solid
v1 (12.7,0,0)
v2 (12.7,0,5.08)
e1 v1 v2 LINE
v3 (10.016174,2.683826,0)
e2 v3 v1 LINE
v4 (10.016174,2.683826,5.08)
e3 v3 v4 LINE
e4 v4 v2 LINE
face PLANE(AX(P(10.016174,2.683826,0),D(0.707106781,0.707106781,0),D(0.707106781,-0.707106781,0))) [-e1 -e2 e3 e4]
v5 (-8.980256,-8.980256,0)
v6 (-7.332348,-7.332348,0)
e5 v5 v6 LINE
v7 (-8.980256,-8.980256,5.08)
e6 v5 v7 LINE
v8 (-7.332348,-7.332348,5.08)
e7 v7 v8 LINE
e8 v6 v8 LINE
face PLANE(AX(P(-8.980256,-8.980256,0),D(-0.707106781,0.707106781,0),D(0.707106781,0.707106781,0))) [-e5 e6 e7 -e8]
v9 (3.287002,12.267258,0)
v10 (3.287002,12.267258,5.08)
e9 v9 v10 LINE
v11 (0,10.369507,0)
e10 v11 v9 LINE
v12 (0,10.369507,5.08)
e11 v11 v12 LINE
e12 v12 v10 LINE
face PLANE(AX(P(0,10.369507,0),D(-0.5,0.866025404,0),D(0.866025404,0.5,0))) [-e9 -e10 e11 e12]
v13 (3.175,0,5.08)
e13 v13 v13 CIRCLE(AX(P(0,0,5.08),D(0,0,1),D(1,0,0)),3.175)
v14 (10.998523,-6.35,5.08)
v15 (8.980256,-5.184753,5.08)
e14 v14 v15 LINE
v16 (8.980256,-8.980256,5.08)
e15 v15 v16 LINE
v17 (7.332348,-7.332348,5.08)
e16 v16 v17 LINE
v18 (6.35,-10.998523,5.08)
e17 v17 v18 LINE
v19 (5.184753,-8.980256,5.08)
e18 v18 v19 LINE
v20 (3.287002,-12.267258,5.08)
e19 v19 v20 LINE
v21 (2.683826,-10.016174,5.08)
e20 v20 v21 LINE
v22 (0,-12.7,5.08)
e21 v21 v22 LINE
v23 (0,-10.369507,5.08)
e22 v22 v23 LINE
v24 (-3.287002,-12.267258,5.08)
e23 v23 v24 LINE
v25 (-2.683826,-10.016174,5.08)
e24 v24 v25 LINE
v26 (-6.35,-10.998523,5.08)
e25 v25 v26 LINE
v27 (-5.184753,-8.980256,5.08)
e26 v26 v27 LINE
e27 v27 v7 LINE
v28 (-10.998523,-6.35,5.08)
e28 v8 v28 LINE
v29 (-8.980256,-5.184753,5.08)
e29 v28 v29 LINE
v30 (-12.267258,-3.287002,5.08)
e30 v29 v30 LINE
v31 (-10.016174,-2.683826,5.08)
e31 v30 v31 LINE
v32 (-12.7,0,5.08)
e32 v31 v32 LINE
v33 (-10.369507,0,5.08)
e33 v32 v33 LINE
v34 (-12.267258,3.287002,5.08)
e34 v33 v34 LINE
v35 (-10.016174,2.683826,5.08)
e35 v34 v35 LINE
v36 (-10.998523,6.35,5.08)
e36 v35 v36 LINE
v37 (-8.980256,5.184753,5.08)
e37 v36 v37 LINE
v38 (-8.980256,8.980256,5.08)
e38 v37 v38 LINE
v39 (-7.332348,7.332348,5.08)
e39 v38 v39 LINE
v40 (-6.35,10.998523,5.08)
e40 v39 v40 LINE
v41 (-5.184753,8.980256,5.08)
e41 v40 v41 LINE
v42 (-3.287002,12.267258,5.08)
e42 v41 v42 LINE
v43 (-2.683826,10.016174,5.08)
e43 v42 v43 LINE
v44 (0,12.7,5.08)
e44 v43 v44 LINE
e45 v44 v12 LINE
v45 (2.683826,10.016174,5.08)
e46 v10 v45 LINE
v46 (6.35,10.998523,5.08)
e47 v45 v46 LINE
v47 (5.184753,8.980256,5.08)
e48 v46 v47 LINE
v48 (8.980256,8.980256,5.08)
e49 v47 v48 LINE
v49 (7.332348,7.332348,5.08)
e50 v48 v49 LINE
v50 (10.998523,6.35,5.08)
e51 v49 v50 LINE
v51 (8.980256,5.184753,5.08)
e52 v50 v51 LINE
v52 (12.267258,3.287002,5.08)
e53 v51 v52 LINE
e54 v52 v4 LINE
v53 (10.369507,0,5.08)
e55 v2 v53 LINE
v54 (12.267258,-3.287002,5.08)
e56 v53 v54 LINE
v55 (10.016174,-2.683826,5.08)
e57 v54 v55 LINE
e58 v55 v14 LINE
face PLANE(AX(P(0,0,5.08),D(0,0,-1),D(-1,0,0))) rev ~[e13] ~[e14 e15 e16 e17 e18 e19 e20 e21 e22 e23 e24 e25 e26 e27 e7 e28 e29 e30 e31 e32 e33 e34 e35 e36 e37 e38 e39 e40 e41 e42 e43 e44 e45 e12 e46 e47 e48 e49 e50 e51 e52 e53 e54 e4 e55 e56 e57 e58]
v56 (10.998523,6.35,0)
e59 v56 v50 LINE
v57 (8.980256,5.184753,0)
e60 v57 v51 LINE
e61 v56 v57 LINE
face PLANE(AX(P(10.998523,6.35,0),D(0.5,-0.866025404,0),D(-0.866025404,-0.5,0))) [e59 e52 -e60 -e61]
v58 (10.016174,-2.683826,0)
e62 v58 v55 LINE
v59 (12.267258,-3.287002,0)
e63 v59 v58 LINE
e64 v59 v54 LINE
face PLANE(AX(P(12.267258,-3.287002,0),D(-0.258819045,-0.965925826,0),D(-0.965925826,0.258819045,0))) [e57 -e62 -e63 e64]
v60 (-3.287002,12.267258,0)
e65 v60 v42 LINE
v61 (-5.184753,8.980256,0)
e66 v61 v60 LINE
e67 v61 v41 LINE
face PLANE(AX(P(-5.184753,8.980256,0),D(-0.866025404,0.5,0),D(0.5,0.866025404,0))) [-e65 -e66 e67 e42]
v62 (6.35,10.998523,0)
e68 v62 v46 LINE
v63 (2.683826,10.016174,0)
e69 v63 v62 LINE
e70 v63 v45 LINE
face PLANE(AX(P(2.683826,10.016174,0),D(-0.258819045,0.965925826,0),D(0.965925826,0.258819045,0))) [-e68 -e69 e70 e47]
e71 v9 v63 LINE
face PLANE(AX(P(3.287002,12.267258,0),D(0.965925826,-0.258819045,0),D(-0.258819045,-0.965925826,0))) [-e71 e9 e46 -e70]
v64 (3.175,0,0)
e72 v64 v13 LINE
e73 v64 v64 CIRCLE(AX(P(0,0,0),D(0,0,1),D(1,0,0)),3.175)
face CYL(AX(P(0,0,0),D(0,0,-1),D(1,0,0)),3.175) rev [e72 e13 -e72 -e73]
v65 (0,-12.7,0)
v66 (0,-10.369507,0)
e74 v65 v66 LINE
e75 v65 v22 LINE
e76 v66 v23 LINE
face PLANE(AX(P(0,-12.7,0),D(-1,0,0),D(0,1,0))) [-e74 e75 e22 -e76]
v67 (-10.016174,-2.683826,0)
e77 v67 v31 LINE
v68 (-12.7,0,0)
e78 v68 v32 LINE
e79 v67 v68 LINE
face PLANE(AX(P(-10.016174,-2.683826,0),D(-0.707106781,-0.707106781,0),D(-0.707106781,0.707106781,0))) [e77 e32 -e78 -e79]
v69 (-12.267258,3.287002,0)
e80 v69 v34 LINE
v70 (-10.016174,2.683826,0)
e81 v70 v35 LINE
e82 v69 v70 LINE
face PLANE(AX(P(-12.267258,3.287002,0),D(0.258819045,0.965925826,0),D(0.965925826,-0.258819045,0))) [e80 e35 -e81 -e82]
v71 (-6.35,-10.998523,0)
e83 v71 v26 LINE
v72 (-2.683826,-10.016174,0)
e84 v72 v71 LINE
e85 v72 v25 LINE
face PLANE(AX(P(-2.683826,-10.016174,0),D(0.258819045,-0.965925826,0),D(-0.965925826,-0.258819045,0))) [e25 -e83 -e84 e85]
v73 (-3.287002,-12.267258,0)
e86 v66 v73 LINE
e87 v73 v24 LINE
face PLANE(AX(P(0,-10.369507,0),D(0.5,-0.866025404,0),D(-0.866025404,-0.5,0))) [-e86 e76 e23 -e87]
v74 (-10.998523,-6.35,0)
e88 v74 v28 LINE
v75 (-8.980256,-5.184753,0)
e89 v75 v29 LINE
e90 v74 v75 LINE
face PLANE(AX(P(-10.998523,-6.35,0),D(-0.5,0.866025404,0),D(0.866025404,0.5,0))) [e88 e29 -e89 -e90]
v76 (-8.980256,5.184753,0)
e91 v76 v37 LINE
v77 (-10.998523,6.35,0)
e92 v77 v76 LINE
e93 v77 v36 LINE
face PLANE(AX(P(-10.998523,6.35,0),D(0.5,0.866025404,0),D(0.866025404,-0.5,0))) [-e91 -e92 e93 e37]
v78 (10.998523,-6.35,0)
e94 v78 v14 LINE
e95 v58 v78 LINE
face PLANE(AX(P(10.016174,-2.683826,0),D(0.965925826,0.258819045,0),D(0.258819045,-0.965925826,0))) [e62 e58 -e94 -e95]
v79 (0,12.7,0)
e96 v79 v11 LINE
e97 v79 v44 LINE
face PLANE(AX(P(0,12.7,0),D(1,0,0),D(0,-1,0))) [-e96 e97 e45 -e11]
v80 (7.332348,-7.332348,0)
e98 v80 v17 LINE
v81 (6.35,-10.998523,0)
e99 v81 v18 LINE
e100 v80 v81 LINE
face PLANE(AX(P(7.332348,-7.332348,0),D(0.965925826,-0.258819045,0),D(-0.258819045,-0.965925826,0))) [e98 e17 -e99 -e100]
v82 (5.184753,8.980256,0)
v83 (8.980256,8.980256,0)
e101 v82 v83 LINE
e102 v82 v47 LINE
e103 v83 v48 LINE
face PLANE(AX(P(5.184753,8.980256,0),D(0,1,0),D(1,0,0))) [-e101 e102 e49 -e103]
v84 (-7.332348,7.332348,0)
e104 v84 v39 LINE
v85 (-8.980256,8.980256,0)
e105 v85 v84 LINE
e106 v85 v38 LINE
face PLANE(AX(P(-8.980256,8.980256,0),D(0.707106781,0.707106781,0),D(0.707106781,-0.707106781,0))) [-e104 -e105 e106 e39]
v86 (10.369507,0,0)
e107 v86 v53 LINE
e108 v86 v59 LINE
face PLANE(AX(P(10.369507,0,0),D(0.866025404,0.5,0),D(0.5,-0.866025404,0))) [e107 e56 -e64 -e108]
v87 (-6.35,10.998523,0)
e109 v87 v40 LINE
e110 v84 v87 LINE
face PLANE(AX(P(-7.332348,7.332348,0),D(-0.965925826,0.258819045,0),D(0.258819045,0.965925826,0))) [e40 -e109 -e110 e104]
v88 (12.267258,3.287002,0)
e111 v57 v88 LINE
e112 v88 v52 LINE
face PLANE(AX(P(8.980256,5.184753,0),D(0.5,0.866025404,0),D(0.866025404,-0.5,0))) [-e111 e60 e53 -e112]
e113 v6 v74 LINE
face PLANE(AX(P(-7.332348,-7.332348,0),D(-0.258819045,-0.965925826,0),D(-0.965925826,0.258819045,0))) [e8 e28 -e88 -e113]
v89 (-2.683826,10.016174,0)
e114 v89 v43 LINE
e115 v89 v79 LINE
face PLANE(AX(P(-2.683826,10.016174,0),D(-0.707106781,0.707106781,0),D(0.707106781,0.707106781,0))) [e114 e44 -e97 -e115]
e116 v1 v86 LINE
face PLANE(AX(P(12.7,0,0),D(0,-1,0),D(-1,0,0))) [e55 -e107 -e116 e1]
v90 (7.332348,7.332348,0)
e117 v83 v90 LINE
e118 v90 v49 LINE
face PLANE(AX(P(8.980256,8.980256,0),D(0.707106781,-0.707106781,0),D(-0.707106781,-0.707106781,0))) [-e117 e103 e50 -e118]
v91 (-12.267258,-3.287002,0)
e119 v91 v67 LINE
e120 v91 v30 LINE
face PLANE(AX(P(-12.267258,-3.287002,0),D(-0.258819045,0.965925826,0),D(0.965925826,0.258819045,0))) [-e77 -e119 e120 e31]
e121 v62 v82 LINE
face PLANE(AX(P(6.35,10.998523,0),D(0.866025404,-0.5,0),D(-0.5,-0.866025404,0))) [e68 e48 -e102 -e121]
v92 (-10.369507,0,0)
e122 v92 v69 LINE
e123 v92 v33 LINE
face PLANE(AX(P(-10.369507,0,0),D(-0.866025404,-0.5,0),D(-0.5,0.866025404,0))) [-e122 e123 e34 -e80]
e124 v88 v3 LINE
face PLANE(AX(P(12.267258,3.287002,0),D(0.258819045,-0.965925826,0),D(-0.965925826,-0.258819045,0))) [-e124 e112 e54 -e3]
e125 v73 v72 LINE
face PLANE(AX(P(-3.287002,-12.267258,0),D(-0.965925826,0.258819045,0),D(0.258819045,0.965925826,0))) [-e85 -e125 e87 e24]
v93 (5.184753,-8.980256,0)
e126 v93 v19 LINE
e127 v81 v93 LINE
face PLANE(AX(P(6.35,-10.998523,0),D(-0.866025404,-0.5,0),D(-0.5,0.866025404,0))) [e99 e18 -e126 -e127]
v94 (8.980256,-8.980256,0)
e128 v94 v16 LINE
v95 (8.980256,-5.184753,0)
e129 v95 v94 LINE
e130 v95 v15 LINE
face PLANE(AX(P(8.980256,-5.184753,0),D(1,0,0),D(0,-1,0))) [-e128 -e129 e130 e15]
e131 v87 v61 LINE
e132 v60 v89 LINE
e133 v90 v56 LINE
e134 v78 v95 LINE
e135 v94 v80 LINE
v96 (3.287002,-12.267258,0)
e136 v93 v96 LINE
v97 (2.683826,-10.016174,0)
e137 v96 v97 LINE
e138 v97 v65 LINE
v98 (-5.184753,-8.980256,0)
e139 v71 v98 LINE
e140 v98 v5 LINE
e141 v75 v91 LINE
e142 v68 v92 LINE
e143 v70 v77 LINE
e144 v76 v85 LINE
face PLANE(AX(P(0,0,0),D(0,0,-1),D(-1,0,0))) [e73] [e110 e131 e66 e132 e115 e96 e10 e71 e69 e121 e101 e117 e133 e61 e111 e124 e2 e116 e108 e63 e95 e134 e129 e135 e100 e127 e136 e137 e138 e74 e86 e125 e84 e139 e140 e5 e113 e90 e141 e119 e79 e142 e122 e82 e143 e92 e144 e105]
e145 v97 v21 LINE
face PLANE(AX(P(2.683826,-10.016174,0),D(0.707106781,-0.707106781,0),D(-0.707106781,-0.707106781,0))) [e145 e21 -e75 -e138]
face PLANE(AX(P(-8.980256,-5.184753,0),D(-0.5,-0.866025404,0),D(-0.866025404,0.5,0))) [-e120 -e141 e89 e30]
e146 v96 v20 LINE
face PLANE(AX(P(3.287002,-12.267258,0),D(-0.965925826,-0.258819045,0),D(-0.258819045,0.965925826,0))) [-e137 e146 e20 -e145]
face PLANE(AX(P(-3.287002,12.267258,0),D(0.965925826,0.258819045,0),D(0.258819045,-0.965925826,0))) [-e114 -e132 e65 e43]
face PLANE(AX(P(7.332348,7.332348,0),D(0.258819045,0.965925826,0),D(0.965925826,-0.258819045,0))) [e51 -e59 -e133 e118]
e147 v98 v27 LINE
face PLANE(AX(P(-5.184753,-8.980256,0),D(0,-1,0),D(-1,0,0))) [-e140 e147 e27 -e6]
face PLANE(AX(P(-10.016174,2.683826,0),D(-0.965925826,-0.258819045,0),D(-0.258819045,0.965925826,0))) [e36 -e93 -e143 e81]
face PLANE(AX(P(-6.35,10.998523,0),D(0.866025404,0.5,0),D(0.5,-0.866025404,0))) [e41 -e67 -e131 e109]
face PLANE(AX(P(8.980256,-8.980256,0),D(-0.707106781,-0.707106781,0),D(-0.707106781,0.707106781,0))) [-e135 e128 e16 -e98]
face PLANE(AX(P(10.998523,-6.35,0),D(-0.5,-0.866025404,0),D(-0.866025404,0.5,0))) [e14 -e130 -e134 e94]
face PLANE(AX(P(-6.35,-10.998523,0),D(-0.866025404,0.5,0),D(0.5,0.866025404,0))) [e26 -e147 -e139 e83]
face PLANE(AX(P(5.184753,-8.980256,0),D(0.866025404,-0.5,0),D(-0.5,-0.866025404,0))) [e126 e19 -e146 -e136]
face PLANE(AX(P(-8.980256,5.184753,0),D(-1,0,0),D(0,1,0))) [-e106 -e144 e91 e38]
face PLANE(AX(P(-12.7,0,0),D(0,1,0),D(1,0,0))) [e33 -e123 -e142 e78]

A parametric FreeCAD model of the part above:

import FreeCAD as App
import Part
import Sketcher
from FreeCAD import Vector
Q = App.Units.Quantity

doc = App.newDocument("Part")
body = doc.addObject("PartDesign::Body", "Body")

sketch1 = body.newObject("Sketcher::SketchObject", "Sketch")
sketch1.AttachmentSupport = (doc.getObject("XY_Plane"), [""])
sketch1.MapMode = "FlatFace"
sketch1.addGeometry([
    Part.LineSegment(Vector(0, 12.7, 0), Vector(-2.7, 10, 0)),
    Part.LineSegment(Vector(-2.7, 10, 0), Vector(-3.3, 12.3, 0)),
    Part.LineSegment(Vector(-3.3, 12.3, 0), Vector(-5.2, 9, 0)),
    Part.LineSegment(Vector(-5.2, 9, 0), Vector(-6.3, 11, 0)),
    Part.LineSegment(Vector(-6.3, 11, 0), Vector(-7.3, 7.3, 0)),
    Part.LineSegment(Vector(-7.3, 7.3, 0), Vector(-9, 9, 0)),
    Part.LineSegment(Vector(-9, 9, 0), Vector(-9, 5.2, 0)),
    Part.LineSegment(Vector(-9, 5.2, 0), Vector(-11, 6.3, 0)),
    Part.LineSegment(Vector(-11, 6.3, 0), Vector(-10, 2.7, 0)),
    Part.LineSegment(Vector(-10, 2.7, 0), Vector(-12.3, 3.3, 0)),
    Part.LineSegment(Vector(-12.3, 3.3, 0), Vector(-10.4, 0, 0)),
    Part.LineSegment(Vector(-10.4, 0, 0), Vector(-12.7, 0, 0)),
    Part.LineSegment(Vector(-12.7, 0, 0), Vector(-10, -2.7, 0)),
    Part.LineSegment(Vector(-10, -2.7, 0), Vector(-12.3, -3.3, 0)),
    Part.LineSegment(Vector(-12.3, -3.3, 0), Vector(-9, -5.2, 0)),
    Part.LineSegment(Vector(-9, -5.2, 0), Vector(-11, -6.3, 0)),
    Part.LineSegment(Vector(-11, -6.3, 0), Vector(-7.3, -7.3, 0)),
    Part.LineSegment(Vector(-7.3, -7.3, 0), Vector(-9, -9, 0)),
    Part.LineSegment(Vector(-9, -9, 0), Vector(-5.2, -9, 0)),
    Part.LineSegment(Vector(-5.2, -9, 0), Vector(-6.3, -11, 0)),
    Part.LineSegment(Vector(-6.3, -11, 0), Vector(-2.7, -10, 0)),
    Part.LineSegment(Vector(-2.7, -10, 0), Vector(-3.3, -12.3, 0)),
    Part.LineSegment(Vector(-3.3, -12.3, 0), Vector(0, -10.4, 0)),
    Part.LineSegment(Vector(0, -10.4, 0), Vector(0, -12.7, 0)),
    Part.LineSegment(Vector(0, -12.7, 0), Vector(2.7, -10, 0)),
    Part.LineSegment(Vector(2.7, -10, 0), Vector(3.3, -12.3, 0)),
    Part.LineSegment(Vector(3.3, -12.3, 0), Vector(5.2, -9, 0)),
    Part.LineSegment(Vector(5.2, -9, 0), Vector(6.3, -11, 0)),
    Part.LineSegment(Vector(6.3, -11, 0), Vector(7.3, -7.3, 0)),
    Part.LineSegment(Vector(7.3, -7.3, 0), Vector(9, -9, 0)),
    Part.LineSegment(Vector(9, -9, 0), Vector(9, -5.2, 0)),
    Part.LineSegment(Vector(9, -5.2, 0), Vector(11, -6.3, 0)),
    Part.LineSegment(Vector(11, -6.3, 0), Vector(10, -2.7, 0)),
    Part.LineSegment(Vector(10, -2.7, 0), Vector(12.3, -3.3, 0)),
    Part.LineSegment(Vector(12.3, -3.3, 0), Vector(10.4, 0, 0)),
    Part.LineSegment(Vector(10.4, 0, 0), Vector(12.7, 0, 0)),
    Part.LineSegment(Vector(12.7, 0, 0), Vector(10, 2.7, 0)),
    Part.LineSegment(Vector(10, 2.7, 0), Vector(12.3, 3.3, 0)),
    Part.LineSegment(Vector(12.3, 3.3, 0), Vector(9, 5.2, 0)),
    Part.LineSegment(Vector(9, 5.2, 0), Vector(11, 6.3, 0)),
    Part.LineSegment(Vector(11, 6.3, 0), Vector(7.3, 7.3, 0)),
    Part.LineSegment(Vector(7.3, 7.3, 0), Vector(9, 9, 0)),
    Part.LineSegment(Vector(9, 9, 0), Vector(5.2, 9, 0)),
    Part.LineSegment(Vector(5.2, 9, 0), Vector(6.3, 11, 0)),
    Part.LineSegment(Vector(6.3, 11, 0), Vector(2.7, 10, 0)),
    Part.LineSegment(Vector(2.7, 10, 0), Vector(3.3, 12.3, 0)),
    Part.LineSegment(Vector(3.3, 12.3, 0), Vector(0, 10.4, 0)),
    Part.LineSegment(Vector(0, 10.4, 0), Vector(0, 12.7, 0)),
    Part.Circle(Vector(0, 0, 0), Vector(0, 0, 1), 3.2),
], False)
sketch1.addConstraint([
    Sketcher.Constraint("Coincident", 0, 2, 1, 1),
    Sketcher.Constraint("Coincident", 1, 2, 2, 1),
    Sketcher.Constraint("Coincident", 2, 2, 3, 1),
    Sketcher.Constraint("Coincident", 3, 2, 4, 1),
    Sketcher.Constraint("Coincident", 4, 2, 5, 1),
    Sketcher.Constraint("Coincident", 5, 2, 6, 1),
    Sketcher.Constraint("Coincident", 6, 2, 7, 1),
    Sketcher.Constraint("Coincident", 7, 2, 8, 1),
    Sketcher.Constraint("Coincident", 8, 2, 9, 1),
    Sketcher.Constraint("Coincident", 9, 2, 10, 1),
    Sketcher.Constraint("Coincident", 10, 2, 11, 1),
    Sketcher.Constraint("Coincident", 11, 2, 12, 1),
    Sketcher.Constraint("Coincident", 12, 2, 13, 1),
    Sketcher.Constraint("Coincident", 13, 2, 14, 1),
    Sketcher.Constraint("Coincident", 14, 2, 15, 1),
    Sketcher.Constraint("Coincident", 15, 2, 16, 1),
    Sketcher.Constraint("Coincident", 16, 2, 17, 1),
    Sketcher.Constraint("Coincident", 17, 2, 18, 1),
    Sketcher.Constraint("Coincident", 18, 2, 19, 1),
    Sketcher.Constraint("Coincident", 19, 2, 20, 1),
    Sketcher.Constraint("Coincident", 20, 2, 21, 1),
    Sketcher.Constraint("Coincident", 21, 2, 22, 1),
    Sketcher.Constraint("Coincident", 22, 2, 23, 1),
    Sketcher.Constraint("Coincident", 23, 2, 24, 1),
    Sketcher.Constraint("Coincident", 24, 2, 25, 1),
    Sketcher.Constraint("Coincident", 25, 2, 26, 1),
    Sketcher.Constraint("Coincident", 26, 2, 27, 1),
    Sketcher.Constraint("Coincident", 27, 2, 28, 1),
    Sketcher.Constraint("Coincident", 28, 2, 29, 1),
    Sketcher.Constraint("Coincident", 29, 2, 30, 1),
    Sketcher.Constraint("Coincident", 30, 2, 31, 1),
    Sketcher.Constraint("Coincident", 31, 2, 32, 1),
    Sketcher.Constraint("Coincident", 32, 2, 33, 1),
    Sketcher.Constraint("Coincident", 33, 2, 34, 1),
    Sketcher.Constraint("Coincident", 34, 2, 35, 1),
    Sketcher.Constraint("Coincident", 35, 2, 36, 1),
    Sketcher.Constraint("Coincident", 36, 2, 37, 1),
    Sketcher.Constraint("Coincident", 37, 2, 38, 1),
    Sketcher.Constraint("Coincident", 38, 2, 39, 1),
    Sketcher.Constraint("Coincident", 39, 2, 40, 1),
    Sketcher.Constraint("Coincident", 40, 2, 41, 1),
    Sketcher.Constraint("Coincident", 41, 2, 42, 1),
    Sketcher.Constraint("Coincident", 42, 2, 43, 1),
    Sketcher.Constraint("Coincident", 43, 2, 44, 1),
    Sketcher.Constraint("Coincident", 44, 2, 45, 1),
    Sketcher.Constraint("Coincident", 45, 2, 46, 1),
    Sketcher.Constraint("Coincident", 46, 2, 47, 1),
    Sketcher.Constraint("Coincident", 47, 2, 0, 1),
    Sketcher.Constraint("Vertical", 6),
    Sketcher.Constraint("Horizontal", 11),
    Sketcher.Constraint("Horizontal", 18),
    Sketcher.Constraint("Vertical", 23),
    Sketcher.Constraint("Vertical", 30),
    Sketcher.Constraint("Horizontal", 35),
    Sketcher.Constraint("Horizontal", 42),
    Sketcher.Constraint("Vertical", 47),
    Sketcher.Constraint("Coincident", 48, 3, -1, 1),
    Sketcher.Constraint("Symmetric", 0, 2, 24, 2, -1, 1),
    Sketcher.Constraint("Symmetric", 1, 2, 25, 2, -1, 1),
    Sketcher.Constraint("Symmetric", 2, 2, 26, 2, -1, 1),
    Sketcher.Constraint("Symmetric", 3, 2, 27, 2, -1, 1),
    Sketcher.Constraint("Symmetric", 4, 2, 28, 2, -1, 1),
    Sketcher.Constraint("Symmetric", 5, 2, 29, 2, -1, 1),
    Sketcher.Constraint("Symmetric", 7, 2, 31, 2, -1, 1),
    Sketcher.Constraint("Symmetric", 8, 2, 32, 2, -1, 1),
    Sketcher.Constraint("Symmetric", 9, 2, 33, 2, -1, 1),
    Sketcher.Constraint("Symmetric", 10, 2, 34, 2, -1, 1),
    Sketcher.Constraint("Symmetric", 12, 2, 36, 2, -1, 1),
    Sketcher.Constraint("Symmetric", 13, 2, 37, 2, -1, 1),
    Sketcher.Constraint("Symmetric", 14, 2, 38, 2, -1, 1),
    Sketcher.Constraint("Symmetric", 15, 2, 39, 2, -1, 1),
    Sketcher.Constraint("Symmetric", 16, 2, 40, 2, -1, 1),
    Sketcher.Constraint("Symmetric", 17, 2, 41, 2, -1, 1),
    Sketcher.Constraint("Symmetric", 19, 2, 43, 2, -1, 1),
    Sketcher.Constraint("Symmetric", 20, 2, 44, 2, -1, 1),
    Sketcher.Constraint("Symmetric", 21, 2, 45, 2, -1, 1),
    Sketcher.Constraint("Symmetric", 22, 2, 46, 2, -1, 1),
    Sketcher.Constraint("Symmetric", 20, 2, 24, 2, -2),
    Sketcher.Constraint("Symmetric", 21, 2, 25, 2, -2),
    Sketcher.Constraint("Symmetric", 18, 2, 26, 2, -2),
    Sketcher.Constraint("Symmetric", 19, 2, 27, 2, -2),
    Sketcher.Constraint("Symmetric", 16, 2, 28, 2, -2),
    Sketcher.Constraint("Symmetric", 17, 2, 29, 2, -2),
    Sketcher.Constraint("Symmetric", 14, 2, 30, 2, -2),
    Sketcher.Constraint("Symmetric", 15, 2, 31, 2, -2),
    Sketcher.Constraint("Symmetric", 12, 2, 32, 2, -2),
    Sketcher.Constraint("Symmetric", 13, 2, 33, 2, -2),
    Sketcher.Constraint("Symmetric", 11, 2, 35, 2, -2),
    Sketcher.Constraint("Symmetric", 23, 2, 47, 2, -1),
    Sketcher.Constraint("Perpendicular", 0, 5),
    Sketcher.Constraint("Perpendicular", 2, 7),
    Sketcher.Constraint("Parallel", 1, 8),
    Sketcher.Constraint("Perpendicular", 4, 9),
    Sketcher.Constraint("Parallel", 3, 10),
    Sketcher.Constraint("Parallel", 5, 12),
    Sketcher.Constraint("Perpendicular", 8, 13),
    Sketcher.Constraint("Parallel", 7, 14),
    Sketcher.Constraint("Perpendicular", 10, 15),
    Sketcher.Constraint("Parallel", 9, 16),
    Sketcher.Constraint("Perpendicular", 12, 17),
    Sketcher.Constraint("Perpendicular", 14, 19),
    Sketcher.Constraint("Parallel", 13, 20),
    Sketcher.Constraint("Parallel", 15, 22),
    Sketcher.Constraint("Perpendicular", 38, 43),
    Sketcher.Constraint("Equal", 42, 6),
    Sketcher.Constraint("Equal", 35, 23),
    Sketcher.Constraint("Equal", 0, 2),
    Sketcher.Constraint("Equal", 1, 3),
    Sketcher.Constraint("Equal", 2, 4),
    Sketcher.Constraint("Equal", 3, 5),
    Sketcher.Constraint("Equal", 4, 8),
    Sketcher.Constraint("Equal", 7, 9),
    Sketcher.Constraint("Diameter", 48, Q("0.25 in")),
    Sketcher.Constraint("DistanceX", 11, 2, -1, 1, Q("0.5 in")),
])
pad1 = body.newObject("PartDesign::Pad", "Pad")
pad1.Profile = sketch1
pad1.Length = Q("0.2 in")

doc.recompute()
